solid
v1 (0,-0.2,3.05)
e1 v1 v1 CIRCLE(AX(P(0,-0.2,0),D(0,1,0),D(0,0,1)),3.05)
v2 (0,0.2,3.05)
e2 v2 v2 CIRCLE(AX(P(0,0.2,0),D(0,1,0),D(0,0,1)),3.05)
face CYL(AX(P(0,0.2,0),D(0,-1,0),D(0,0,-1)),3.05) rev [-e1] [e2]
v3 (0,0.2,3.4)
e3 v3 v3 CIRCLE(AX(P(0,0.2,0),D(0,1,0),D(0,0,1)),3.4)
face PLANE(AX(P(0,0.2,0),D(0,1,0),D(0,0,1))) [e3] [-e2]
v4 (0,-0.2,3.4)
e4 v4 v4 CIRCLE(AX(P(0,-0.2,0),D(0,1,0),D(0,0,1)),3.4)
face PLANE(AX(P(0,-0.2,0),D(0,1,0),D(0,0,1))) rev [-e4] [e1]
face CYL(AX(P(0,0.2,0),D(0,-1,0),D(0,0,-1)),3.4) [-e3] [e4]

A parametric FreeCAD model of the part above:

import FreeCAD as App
import Part
import Sketcher
from FreeCAD import Vector
Q = App.Units.Quantity

doc = App.newDocument("Part")
body = doc.addObject("PartDesign::Body", "Body")

# Sketch on XZ plane
sketch1 = body.newObject("Sketcher::SketchObject", "Sketch")
sketch1.AttachmentSupport = (doc.getObject("XZ_Plane"), [""])
sketch1.MapMode = "FlatFace"
sketch1.addGeometry([
    Part.Circle(Vector(0, 0, 0), Vector(0, 0, 1), 3.4),
    Part.Circle(Vector(0, 0, 0), Vector(0, 0, 1), 3.05),
], False)
sketch1.addConstraint([
    Sketcher.Constraint("Coincident", 0, 3, -1, 1),
    Sketcher.Constraint("Coincident", 1, 3, -1, 1),
    Sketcher.Constraint("Diameter", 0, Q("6.8 mm")),
    Sketcher.Constraint("Diameter", 1, Q("6.1 mm")),
])
pad1 = body.newObject("PartDesign::Pad", "Pad")
pad1.Profile = sketch1
pad1.Length = 0.4
pad1.Midplane = True

doc.recompute()
